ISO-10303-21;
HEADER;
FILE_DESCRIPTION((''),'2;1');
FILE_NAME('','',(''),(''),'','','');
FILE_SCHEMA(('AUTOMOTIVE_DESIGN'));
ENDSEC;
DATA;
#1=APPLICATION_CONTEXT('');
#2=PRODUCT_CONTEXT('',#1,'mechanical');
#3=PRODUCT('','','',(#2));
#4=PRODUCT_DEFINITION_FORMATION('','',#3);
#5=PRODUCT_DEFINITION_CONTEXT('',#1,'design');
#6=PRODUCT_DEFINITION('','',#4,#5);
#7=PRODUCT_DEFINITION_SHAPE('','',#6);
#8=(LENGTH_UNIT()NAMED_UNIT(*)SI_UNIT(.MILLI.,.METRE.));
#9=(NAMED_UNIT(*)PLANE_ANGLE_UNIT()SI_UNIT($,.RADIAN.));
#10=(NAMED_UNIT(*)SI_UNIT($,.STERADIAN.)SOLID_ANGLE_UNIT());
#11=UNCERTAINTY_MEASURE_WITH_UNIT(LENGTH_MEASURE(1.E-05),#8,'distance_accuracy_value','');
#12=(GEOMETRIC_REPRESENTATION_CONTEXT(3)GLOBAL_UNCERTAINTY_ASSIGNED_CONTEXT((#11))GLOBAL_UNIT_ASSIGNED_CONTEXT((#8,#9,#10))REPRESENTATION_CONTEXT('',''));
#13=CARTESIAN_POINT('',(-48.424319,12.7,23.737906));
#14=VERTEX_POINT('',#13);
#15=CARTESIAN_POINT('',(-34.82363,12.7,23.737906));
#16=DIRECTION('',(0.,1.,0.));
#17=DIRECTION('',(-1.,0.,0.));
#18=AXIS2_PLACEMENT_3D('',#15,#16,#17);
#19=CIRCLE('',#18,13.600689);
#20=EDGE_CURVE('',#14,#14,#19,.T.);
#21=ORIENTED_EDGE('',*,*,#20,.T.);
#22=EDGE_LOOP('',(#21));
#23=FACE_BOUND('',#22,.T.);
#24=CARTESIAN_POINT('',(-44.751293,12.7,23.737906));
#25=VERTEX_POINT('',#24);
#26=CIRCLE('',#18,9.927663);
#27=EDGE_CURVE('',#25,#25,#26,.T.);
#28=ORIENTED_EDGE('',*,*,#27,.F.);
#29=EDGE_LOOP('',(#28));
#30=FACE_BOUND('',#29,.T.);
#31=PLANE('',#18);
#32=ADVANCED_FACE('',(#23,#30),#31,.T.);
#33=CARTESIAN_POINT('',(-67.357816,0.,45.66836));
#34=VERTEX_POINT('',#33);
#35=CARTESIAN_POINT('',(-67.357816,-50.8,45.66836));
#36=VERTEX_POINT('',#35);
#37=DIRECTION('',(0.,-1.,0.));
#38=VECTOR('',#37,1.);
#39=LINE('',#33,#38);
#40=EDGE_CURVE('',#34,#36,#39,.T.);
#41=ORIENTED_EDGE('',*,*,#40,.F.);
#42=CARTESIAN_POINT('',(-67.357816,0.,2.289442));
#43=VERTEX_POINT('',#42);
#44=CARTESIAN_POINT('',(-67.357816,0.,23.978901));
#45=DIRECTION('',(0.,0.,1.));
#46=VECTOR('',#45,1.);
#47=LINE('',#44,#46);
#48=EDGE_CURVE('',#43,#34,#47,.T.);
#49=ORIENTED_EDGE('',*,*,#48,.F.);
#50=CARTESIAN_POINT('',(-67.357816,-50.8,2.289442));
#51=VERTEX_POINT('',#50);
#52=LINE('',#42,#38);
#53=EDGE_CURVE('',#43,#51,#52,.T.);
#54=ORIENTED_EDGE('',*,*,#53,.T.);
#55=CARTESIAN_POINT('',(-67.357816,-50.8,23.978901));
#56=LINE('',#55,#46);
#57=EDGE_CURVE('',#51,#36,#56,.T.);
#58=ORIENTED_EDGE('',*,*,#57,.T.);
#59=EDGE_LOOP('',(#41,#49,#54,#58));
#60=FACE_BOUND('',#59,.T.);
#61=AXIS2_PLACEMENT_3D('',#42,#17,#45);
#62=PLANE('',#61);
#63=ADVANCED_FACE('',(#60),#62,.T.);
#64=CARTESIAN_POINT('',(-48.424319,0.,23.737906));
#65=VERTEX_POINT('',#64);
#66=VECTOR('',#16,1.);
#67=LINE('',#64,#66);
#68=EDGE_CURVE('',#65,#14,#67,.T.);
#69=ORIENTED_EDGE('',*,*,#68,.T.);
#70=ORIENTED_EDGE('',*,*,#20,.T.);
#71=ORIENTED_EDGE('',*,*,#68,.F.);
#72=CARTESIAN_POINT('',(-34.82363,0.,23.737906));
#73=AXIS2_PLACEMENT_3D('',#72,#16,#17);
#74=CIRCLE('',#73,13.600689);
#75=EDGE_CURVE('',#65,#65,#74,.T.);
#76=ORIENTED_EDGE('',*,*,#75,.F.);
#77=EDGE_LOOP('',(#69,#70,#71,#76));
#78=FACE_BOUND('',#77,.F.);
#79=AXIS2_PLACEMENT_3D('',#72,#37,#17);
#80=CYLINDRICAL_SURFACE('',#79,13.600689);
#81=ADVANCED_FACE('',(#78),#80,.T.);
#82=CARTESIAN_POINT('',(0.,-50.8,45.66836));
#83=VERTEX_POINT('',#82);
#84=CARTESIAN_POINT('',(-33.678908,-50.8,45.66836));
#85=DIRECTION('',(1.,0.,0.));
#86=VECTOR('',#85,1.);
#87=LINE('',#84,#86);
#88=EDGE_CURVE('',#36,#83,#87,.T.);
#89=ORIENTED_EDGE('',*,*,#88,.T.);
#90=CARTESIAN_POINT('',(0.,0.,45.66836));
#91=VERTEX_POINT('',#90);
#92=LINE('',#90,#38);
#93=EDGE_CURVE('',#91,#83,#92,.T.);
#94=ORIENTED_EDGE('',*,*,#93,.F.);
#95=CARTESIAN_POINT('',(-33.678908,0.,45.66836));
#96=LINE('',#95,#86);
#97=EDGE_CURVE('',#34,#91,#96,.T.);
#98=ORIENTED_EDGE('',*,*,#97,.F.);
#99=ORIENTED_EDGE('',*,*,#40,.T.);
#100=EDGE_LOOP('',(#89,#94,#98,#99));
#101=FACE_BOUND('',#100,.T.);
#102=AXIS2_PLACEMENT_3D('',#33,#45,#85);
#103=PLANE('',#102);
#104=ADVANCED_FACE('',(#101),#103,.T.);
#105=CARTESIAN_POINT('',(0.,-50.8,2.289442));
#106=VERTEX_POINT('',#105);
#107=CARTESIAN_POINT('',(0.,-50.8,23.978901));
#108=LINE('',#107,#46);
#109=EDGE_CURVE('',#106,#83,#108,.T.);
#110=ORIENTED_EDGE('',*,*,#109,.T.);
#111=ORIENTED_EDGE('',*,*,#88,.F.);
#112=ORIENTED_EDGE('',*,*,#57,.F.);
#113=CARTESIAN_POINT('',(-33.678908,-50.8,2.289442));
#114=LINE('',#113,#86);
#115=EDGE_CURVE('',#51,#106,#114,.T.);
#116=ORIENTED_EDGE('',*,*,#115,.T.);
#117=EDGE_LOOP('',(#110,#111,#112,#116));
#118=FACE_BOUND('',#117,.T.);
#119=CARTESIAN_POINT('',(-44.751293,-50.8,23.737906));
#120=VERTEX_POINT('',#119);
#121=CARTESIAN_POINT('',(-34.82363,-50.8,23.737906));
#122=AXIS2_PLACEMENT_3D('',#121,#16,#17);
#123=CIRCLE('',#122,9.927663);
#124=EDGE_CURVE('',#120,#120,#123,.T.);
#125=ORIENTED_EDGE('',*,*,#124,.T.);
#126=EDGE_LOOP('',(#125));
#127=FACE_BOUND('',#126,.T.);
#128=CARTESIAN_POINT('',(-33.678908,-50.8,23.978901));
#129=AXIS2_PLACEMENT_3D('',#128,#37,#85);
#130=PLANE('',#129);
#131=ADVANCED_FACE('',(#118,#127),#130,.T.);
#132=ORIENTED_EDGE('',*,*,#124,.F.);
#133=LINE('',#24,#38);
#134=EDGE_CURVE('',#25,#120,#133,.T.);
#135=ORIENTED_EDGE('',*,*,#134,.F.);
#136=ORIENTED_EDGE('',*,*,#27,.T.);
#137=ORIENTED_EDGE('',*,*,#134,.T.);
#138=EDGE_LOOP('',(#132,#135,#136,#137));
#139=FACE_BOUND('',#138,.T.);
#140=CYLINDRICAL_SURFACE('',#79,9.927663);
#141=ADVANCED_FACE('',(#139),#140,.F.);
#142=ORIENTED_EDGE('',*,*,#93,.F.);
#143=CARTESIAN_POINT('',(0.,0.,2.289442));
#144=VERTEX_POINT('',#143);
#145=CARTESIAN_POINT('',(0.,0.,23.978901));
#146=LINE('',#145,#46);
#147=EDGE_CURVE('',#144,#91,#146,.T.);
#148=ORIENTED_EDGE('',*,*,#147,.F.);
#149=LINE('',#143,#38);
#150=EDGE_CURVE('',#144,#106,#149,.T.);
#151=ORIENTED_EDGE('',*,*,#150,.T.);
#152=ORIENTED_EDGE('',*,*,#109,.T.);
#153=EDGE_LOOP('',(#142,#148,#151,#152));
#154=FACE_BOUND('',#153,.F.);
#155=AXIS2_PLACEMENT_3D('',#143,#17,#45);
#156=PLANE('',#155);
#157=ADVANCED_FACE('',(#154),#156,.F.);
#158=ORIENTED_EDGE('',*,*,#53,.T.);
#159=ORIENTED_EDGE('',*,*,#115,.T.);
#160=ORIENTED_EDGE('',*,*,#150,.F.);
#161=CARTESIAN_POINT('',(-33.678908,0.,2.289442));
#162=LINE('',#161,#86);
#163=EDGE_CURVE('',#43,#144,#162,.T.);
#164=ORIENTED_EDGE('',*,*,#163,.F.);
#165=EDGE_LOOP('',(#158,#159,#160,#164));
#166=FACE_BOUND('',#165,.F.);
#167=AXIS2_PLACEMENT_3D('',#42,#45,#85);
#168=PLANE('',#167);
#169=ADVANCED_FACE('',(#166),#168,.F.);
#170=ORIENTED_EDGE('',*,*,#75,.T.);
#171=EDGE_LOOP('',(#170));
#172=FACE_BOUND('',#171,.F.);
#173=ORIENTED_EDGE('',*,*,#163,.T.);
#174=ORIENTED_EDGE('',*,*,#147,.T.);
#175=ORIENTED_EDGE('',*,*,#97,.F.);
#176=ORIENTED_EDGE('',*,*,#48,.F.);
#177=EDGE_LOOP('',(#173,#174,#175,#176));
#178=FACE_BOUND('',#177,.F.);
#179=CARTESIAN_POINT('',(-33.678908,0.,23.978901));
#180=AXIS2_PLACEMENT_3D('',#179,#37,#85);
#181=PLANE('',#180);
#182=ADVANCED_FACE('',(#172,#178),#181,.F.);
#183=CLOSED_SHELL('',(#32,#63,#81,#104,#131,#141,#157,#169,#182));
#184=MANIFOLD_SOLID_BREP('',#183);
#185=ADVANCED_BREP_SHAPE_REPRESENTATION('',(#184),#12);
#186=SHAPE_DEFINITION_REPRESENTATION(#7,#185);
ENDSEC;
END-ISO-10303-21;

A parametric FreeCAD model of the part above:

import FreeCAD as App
import Part
import Sketcher
Q = App.Units.Quantity


def add_polygon(sketch, points):
    """Adds a closed chain of lines whose ends are joined by coincident constraints."""
    first, n = sketch.GeometryCount, len(points)
    for a, b in zip(points, points[1:] + points[:1]):
        sketch.addGeometry(Part.LineSegment(App.Vector(*a, 0), App.Vector(*b, 0)), False)
    for i in range(n):
        sketch.addConstraint(Sketcher.Constraint("Coincident", first + i, 2, first + (i + 1) % n, 1))

doc = App.newDocument("Part")
body = doc.addObject("PartDesign::Body", "Body")

sketch1 = body.newObject("Sketcher::SketchObject", "Sketch")
sketch1.AttachmentSupport = (doc.getObject("XZ_Plane"), [""])
sketch1.MapMode = "FlatFace"
add_polygon(sketch1, [(-67, 46), (-67, 2), (0, 2), (0, 46)])
sketch1.addConstraint(Sketcher.Constraint("Vertical", 0))
sketch1.addConstraint(Sketcher.Constraint("Horizontal", 1))
sketch1.addConstraint(Sketcher.Constraint("Vertical", 2))
sketch1.addConstraint(Sketcher.Constraint("Horizontal", 3))
sketch1.addConstraint(Sketcher.Constraint("PointOnObject", 1, 2, -2))
sketch1.addConstraint(Sketcher.Constraint("DistanceX", 1, 1, 1, 2, Q("67.357816 mm")))
sketch1.addConstraint(Sketcher.Constraint("DistanceY", 0, 2, 0, 1, Q("43.378917 mm")))
sketch1.addConstraint(Sketcher.Constraint("DistanceY", -1, 1, 2, 2, Q("45.66836 mm")))
pad1 = body.newObject("PartDesign::Pad", "Pad")
pad1.Profile = sketch1
pad1.Length = Q("2 in")

sketch2 = body.newObject("Sketcher::SketchObject", "Sketch001")
sketch2.AttachmentSupport = (doc.getObject("XZ_Plane"), [""])
sketch2.MapMode = "FlatFace"
sketch2.addGeometry(Part.Circle(App.Vector(-35, 24, 0), App.Vector(0, 0, 1), 10), False)
sketch2.addConstraint(Sketcher.Constraint("Diameter", 0, Q("19.855326 mm")))
sketch2.addConstraint(Sketcher.Constraint("DistanceX", 0, 3, -1, 1, Q("34.82363 mm")))
sketch2.addConstraint(Sketcher.Constraint("DistanceY", -1, 1, 0, 3, Q("23.737906 mm")))
pocket1 = body.newObject("PartDesign::Pocket", "Pocket")
pocket1.Profile = sketch2
pocket1.Length = Q("2 in")
pocket1.Reversed = True

sketch3 = body.newObject("Sketcher::SketchObject", "Sketch002")
sketch3.AttachmentSupport = (doc.getObject("XZ_Plane"), [""])
sketch3.MapMode = "FlatFace"
sketch3.addGeometry(Part.Circle(App.Vector(-35, 24, 0), App.Vector(0, 0, 1), 14), False)
sketch3.addGeometry(Part.Circle(App.Vector(-35, 24, 0), App.Vector(0, 0, 1), 10), False)
sketch3.addConstraint(Sketcher.Constraint("Coincident", 1, 3, 0, 3))
sketch3.addConstraint(Sketcher.Constraint("Diameter", 0, Q("27.201378 mm")))
sketch3.addConstraint(Sketcher.Constraint("Diameter", 1, Q("19.855326 mm")))
sketch3.addConstraint(Sketcher.Constraint("DistanceX", 0, 3, -1, 1, Q("34.82363 mm")))
sketch3.addConstraint(Sketcher.Constraint("DistanceY", -1, 1, 0, 3, Q("23.737906 mm")))
pad2 = body.newObject("PartDesign::Pad", "Pad001")
pad2.Profile = sketch3
pad2.Length = Q("0.5 in")
pad2.Reversed = True

doc.recompute()
